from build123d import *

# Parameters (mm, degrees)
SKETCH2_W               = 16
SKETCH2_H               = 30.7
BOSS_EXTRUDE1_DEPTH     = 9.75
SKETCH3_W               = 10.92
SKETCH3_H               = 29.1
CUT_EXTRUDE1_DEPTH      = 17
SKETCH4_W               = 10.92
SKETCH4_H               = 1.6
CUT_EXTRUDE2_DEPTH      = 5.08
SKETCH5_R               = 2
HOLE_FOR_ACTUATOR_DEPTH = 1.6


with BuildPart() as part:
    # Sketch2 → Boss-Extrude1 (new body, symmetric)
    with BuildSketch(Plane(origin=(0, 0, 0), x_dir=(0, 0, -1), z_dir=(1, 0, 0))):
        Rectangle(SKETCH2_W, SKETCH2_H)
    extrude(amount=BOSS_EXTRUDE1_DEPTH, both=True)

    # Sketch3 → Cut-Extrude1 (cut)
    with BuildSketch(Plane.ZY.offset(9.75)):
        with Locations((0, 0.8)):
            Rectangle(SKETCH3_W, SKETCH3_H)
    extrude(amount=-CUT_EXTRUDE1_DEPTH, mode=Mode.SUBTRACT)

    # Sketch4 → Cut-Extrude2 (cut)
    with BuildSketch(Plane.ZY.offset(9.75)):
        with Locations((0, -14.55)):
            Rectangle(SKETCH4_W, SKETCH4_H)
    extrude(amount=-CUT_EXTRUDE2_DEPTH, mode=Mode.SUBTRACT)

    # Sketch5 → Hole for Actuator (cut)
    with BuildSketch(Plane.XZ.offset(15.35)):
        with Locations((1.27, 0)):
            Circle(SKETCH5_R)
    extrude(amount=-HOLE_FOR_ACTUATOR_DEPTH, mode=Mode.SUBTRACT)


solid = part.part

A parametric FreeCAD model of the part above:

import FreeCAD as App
import Part
import Sketcher
from FreeCAD import Vector
Q = App.Units.Quantity

doc = App.newDocument("Part")
body = doc.addObject("PartDesign::Body", "Body")

sketch1 = body.newObject("Sketcher::SketchObject", "Sketch")
sketch1.AttachmentSupport = (doc.getObject("YZ_Plane"), [""])
sketch1.MapMode = "FlatFace"
sketch1.addGeometry([
    Part.LineSegment(Vector(15, 8, 0), Vector(-15, 8, 0)),
    Part.LineSegment(Vector(-15, 8, 0), Vector(-15, -8, 0)),
    Part.LineSegment(Vector(-15, -8, 0), Vector(15, -8, 0)),
    Part.LineSegment(Vector(15, -8, 0), Vector(15, 8, 0)),
], False)
sketch1.addConstraint([
    Sketcher.Constraint("Coincident", 0, 2, 1, 1),
    Sketcher.Constraint("Coincident", 1, 2, 2, 1),
    Sketcher.Constraint("Coincident", 2, 2, 3, 1),
    Sketcher.Constraint("Coincident", 3, 2, 0, 1),
    Sketcher.Constraint("Horizontal", 0),
    Sketcher.Constraint("Vertical", 1),
    Sketcher.Constraint("Horizontal", 2),
    Sketcher.Constraint("Vertical", 3),
    Sketcher.Constraint("Symmetric", 0, 2, 2, 2, -1, 1),
    Sketcher.Constraint("DistanceY", 1, 2, 1, 1, Q("16 mm")),
    Sketcher.Constraint("DistanceX", 0, 2, 0, 1, Q("30.7 mm")),
])
pad1 = body.newObject("PartDesign::Pad", "Pad")
pad1.Profile = sketch1
pad1.Length = 19.5
pad1.Midplane = True

sketch2 = body.newObject("Sketcher::SketchObject", "Sketch001")
sketch2.AttachmentSupport = (doc.getObject("YZ_Plane"), [""])
sketch2.MapMode = "FlatFace"
sketch2.AttachmentOffset = App.Placement(Vector(0, 0, -9.75), App.Rotation())
sketch2.addGeometry([
    Part.LineSegment(Vector(15, -5, 0), Vector(-14, -5, 0)),
    Part.LineSegment(Vector(-14, -5, 0), Vector(-14, 5, 0)),
    Part.LineSegment(Vector(-14, 5, 0), Vector(15, 5, 0)),
    Part.LineSegment(Vector(15, 5, 0), Vector(15, -5, 0)),
], False)
sketch2.addConstraint([
    Sketcher.Constraint("Coincident", 0, 2, 1, 1),
    Sketcher.Constraint("Coincident", 1, 2, 2, 1),
    Sketcher.Constraint("Coincident", 2, 2, 3, 1),
    Sketcher.Constraint("Coincident", 3, 2, 0, 1),
    Sketcher.Constraint("Horizontal", 0),
    Sketcher.Constraint("Vertical", 1),
    Sketcher.Constraint("Horizontal", 2),
    Sketcher.Constraint("Vertical", 3),
    Sketcher.Constraint("DistanceX", 0, 2, 0, 1, Q("29.1 mm")),
    Sketcher.Constraint("DistanceY", 1, 1, 1, 2, Q("10.92 mm")),
    Sketcher.Constraint("DistanceX", 0, 2, -1, 1, Q("13.75 mm")),
    Sketcher.Constraint("DistanceY", 0, 2, -1, 1, Q("5.46 mm")),
])
pocket1 = body.newObject("PartDesign::Pocket", "Pocket")
pocket1.Profile = sketch2
pocket1.Length = 17
pocket1.Reversed = True

sketch3 = body.newObject("Sketcher::SketchObject", "Sketch002")
sketch3.AttachmentSupport = (doc.getObject("YZ_Plane"), [""])
sketch3.MapMode = "FlatFace"
sketch3.AttachmentOffset = App.Placement(Vector(0, 0, -9.75), App.Rotation())
sketch3.addGeometry([
    Part.LineSegment(Vector(-13.8, -5.5, 0), Vector(-15.3, -5.5, 0)),
    Part.LineSegment(Vector(-15.3, -5.5, 0), Vector(-15.3, 5.5, 0)),
    Part.LineSegment(Vector(-15.3, 5.5, 0), Vector(-13.8, 5.5, 0)),
    Part.LineSegment(Vector(-13.8, 5.5, 0), Vector(-13.8, -5.5, 0)),
], False)
sketch3.addConstraint([
    Sketcher.Constraint("Coincident", 0, 2, 1, 1),
    Sketcher.Constraint("Coincident", 1, 2, 2, 1),
    Sketcher.Constraint("Coincident", 2, 2, 3, 1),
    Sketcher.Constraint("Coincident", 3, 2, 0, 1),
    Sketcher.Constraint("Horizontal", 0),
    Sketcher.Constraint("Vertical", 1),
    Sketcher.Constraint("Horizontal", 2),
    Sketcher.Constraint("Vertical", 3),
    Sketcher.Constraint("DistanceX", 0, 2, 0, 1, Q("1.6 mm")),
    Sketcher.Constraint("DistanceY", 1, 1, 1, 2, Q("10.92 mm")),
    Sketcher.Constraint("DistanceX", 0, 2, -1, 1, Q("15.35 mm")),
    Sketcher.Constraint("DistanceY", 0, 2, -1, 1, Q("5.46 mm")),
])
pocket2 = body.newObject("PartDesign::Pocket", "Pocket001")
pocket2.Profile = sketch3
pocket2.Length = 5.08
pocket2.Reversed = True

sketch4 = body.newObject("Sketcher::SketchObject", "Sketch003")
sketch4.AttachmentSupport = (doc.getObject("XZ_Plane"), [""])
sketch4.MapMode = "FlatFace"
sketch4.AttachmentOffset = App.Placement(Vector(0, 0, 15.35), App.Rotation())
sketch4.addGeometry(Part.Circle(Vector(1.3, 0, 0), Vector(0, 0, 1), 2), False)
sketch4.addConstraint([
    Sketcher.Constraint("PointOnObject", 0, 3, -1),
    Sketcher.Constraint("Diameter", 0, Q("4 mm")),
    Sketcher.Constraint("DistanceX", -1, 1, 0, 3, Q("1.27 mm")),
])
pocket3 = body.newObject("PartDesign::Pocket", "Pocket002")
pocket3.Profile = sketch4
pocket3.Length = 1.6

doc.recompute()
